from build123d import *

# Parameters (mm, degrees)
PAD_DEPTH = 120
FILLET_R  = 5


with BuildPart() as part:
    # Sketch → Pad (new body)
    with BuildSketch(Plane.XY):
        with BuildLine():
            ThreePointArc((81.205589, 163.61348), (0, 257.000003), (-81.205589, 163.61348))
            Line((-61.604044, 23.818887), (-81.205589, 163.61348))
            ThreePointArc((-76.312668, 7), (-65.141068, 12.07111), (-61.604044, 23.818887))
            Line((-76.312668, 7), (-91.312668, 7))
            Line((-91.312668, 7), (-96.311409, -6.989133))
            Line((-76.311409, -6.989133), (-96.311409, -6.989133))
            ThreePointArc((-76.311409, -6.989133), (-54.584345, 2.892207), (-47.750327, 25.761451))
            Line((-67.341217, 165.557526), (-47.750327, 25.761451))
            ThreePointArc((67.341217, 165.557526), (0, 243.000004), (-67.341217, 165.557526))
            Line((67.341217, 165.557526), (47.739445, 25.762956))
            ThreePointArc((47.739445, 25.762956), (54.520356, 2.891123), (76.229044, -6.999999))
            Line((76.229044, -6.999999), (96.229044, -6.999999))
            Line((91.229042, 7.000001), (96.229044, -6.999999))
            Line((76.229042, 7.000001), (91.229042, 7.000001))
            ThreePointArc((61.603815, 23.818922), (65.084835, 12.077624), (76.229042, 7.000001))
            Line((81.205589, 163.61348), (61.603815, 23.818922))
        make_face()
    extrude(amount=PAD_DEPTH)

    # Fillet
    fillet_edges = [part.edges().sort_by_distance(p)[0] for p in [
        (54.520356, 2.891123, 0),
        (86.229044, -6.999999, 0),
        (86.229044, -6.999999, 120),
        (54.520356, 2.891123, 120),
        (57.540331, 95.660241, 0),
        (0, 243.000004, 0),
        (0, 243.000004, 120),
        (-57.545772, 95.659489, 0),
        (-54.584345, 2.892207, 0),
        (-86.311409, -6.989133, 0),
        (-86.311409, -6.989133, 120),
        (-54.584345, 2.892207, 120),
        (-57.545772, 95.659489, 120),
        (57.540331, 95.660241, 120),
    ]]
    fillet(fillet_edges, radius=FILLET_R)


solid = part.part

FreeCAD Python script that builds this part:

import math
import FreeCAD as App
import Part
import Sketcher
Q = App.Units.Quantity


def edges_at(feature, points):
    """Names of the edges that pass closest to the given points."""
    edges = feature.Shape.Edges
    near = lambda p: min(range(len(edges)), key=lambda i: edges[i].distToShape(Part.Vertex(*p))[0])
    return sorted({f"Edge{near(p) + 1}" for p in points})

doc = App.newDocument("Part")
params = doc.addObject("Spreadsheet::Sheet", "Params")
for row, (alias, value) in enumerate([
    ("sketch1_radius", "67.999999 mm"),
    ("sketch1_width", "15 mm"),
    ("sketch1_width2", "20 mm"),
    ("sketch1_width3", "20 mm"),
    ("sketch1_width4", "15 mm"),
    ("pad1_length", "120 mm"),
    ("fillet_radius", "5 mm"),
], start=1):
    params.set(f"A{row}", alias)
    params.set(f"B{row}", "=" + value)
    params.setAlias(f"B{row}", alias)

body = doc.addObject("PartDesign::Body", "Body")

# Sketch on XY plane
sketch1 = body.newObject("Sketcher::SketchObject", "Sketch")
sketch1.AttachmentSupport = (doc.getObject("XY_Plane"), [""])
sketch1.MapMode = "FlatFace"
sketch1.addGeometry([
    Part.ArcOfCircle(Part.Circle(App.Vector(0, 175, 0), App.Vector(0, 0, 1), 82.000003), math.radians(-7.981884), math.radians(187.981884)),  # 0
    Part.LineSegment(App.Vector(-81.205589, 163.61348, 0), App.Vector(-61.604044, 23.818887, 0)),  # 1
    Part.ArcOfCircle(Part.Circle(App.Vector(-76.312668, 21.841011, 0), App.Vector(0, 0, 1), 14.841011), math.radians(-90.000001), math.radians(7.658651)),  # 2
    Part.LineSegment(App.Vector(-76.312668, 7, 0), App.Vector(-91.312668, 7, 0)),  # 3
    Part.LineSegment(App.Vector(-91.312668, 7, 0), App.Vector(-96.311409, -6.989133, 0)),  # 4
    Part.LineSegment(App.Vector(-96.311409, -6.989133, 0), App.Vector(-76.311409, -6.989133, 0)),  # 5
    Part.ArcOfCircle(Part.Circle(App.Vector(-76.312668, 21.841011, 0), App.Vector(0, 0, 1), 28.830144), math.radians(-89.997498), math.radians(7.815528)),  # 6
    Part.LineSegment(App.Vector(-47.750327, 25.761451, 0), App.Vector(-67.341217, 165.557526, 0)),  # 7
    Part.ArcOfCircle(Part.Circle(App.Vector(0, 175.000005, 0), App.Vector(0, 0, 1), 67.999999), math.radians(-7.981884), math.radians(187.981884)),  # 8
    Part.LineSegment(App.Vector(67.341217, 165.557526, 0), App.Vector(47.739445, 25.762956, 0)),  # 9
    Part.ArcOfCircle(Part.Circle(App.Vector(76.229041, 21.76829, 0), App.Vector(0, 0, 1), 28.768289), math.radians(172.018314), math.radians(270.000005)),  # 10
    Part.LineSegment(App.Vector(76.229044, -6.999999, 0), App.Vector(96.229044, -6.999999, 0)),  # 11
    Part.LineSegment(App.Vector(96.229044, -6.999999, 0), App.Vector(91.229042, 7.000001, 0)),  # 12
    Part.LineSegment(App.Vector(91.229042, 7.000001, 0), App.Vector(76.229042, 7.000001, 0)),  # 13
    Part.ArcOfCircle(Part.Circle(App.Vector(76.229042, 21.76829, 0), App.Vector(0, 0, 1), 14.768289), math.radians(172.018478), math.radians(270)),  # 14
    Part.LineSegment(App.Vector(61.603815, 23.818922, 0), App.Vector(81.205589, 163.61348, 0)),  # 15
], False)
sketch1.addConstraint([
    Sketcher.Constraint("Coincident", 0, 2, 1, 1),
    Sketcher.Constraint("Coincident", 1, 2, 2, 2),
    Sketcher.Constraint("Coincident", 2, 1, 3, 1),
    Sketcher.Constraint("Coincident", 3, 2, 4, 1),
    Sketcher.Constraint("Coincident", 4, 2, 5, 1),
    Sketcher.Constraint("Coincident", 5, 2, 6, 1),
    Sketcher.Constraint("Coincident", 6, 2, 7, 1),
    Sketcher.Constraint("Coincident", 7, 2, 8, 2),
    Sketcher.Constraint("Coincident", 8, 1, 9, 1),
    Sketcher.Constraint("Coincident", 9, 2, 10, 1),
    Sketcher.Constraint("Coincident", 10, 2, 11, 1),
    Sketcher.Constraint("Coincident", 11, 2, 12, 1),
    Sketcher.Constraint("Coincident", 12, 2, 13, 1),
    Sketcher.Constraint("Coincident", 13, 2, 14, 2),
    Sketcher.Constraint("Coincident", 14, 1, 15, 1),
    Sketcher.Constraint("Coincident", 15, 2, 0, 1),
    Sketcher.Constraint("Horizontal", 3),
    Sketcher.Constraint("Horizontal", 5),
    Sketcher.Constraint("Horizontal", 11),
    Sketcher.Constraint("Horizontal", 13),
    Sketcher.Constraint("Coincident", 6, 3, 2, 3),
    Sketcher.Constraint("Coincident", 8, 3, 0, 3),
    Sketcher.Constraint("Coincident", 14, 3, 10, 3),
    Sketcher.Constraint("PointOnObject", 0, 3, -2),
    Sketcher.Constraint("Radius", 8, Q("67.999999 mm")),
    Sketcher.Constraint("DistanceX", 3, 2, 3, 1, Q("15 mm")),
    Sketcher.Constraint("DistanceX", 5, 1, 5, 2, Q("20 mm")),
    Sketcher.Constraint("DistanceX", 11, 1, 11, 2, Q("20 mm")),
    Sketcher.Constraint("DistanceX", 13, 2, 13, 1, Q("15 mm")),
    Sketcher.Constraint("DistanceY", -1, 1, 0, 3, Q("175 mm")),
    Sketcher.Constraint("DistanceY", -1, 1, 2, 1, Q("7 mm")),
    Sketcher.Constraint("DistanceY", 10, 2, -1, 1, Q("6.999999 mm")),
    Sketcher.Constraint("DistanceY", -1, 1, 12, 2, Q("7.000001 mm")),
    Sketcher.Constraint("DistanceX", 3, 2, 6, 3, Q("15 mm")),
    Sketcher.Constraint("DistanceX", 14, 3, 11, 2, Q("20.000002 mm")),
    Sketcher.Constraint("DistanceX", 12, 2, 11, 2, Q("5.000002 mm")),
    Sketcher.Constraint("Radius", 2, Q("14.841011 mm")),
    Sketcher.Constraint("Radius", 10, Q("28.768289 mm")),
    Sketcher.Constraint("Radius", 0, Q("82.000003 mm")),
    Sketcher.Constraint("Radius", 6, Q("28.830144 mm")),
    Sketcher.Constraint("DistanceX", 9, 2, 10, 2, Q("28.489599 mm")),
    Sketcher.Constraint("Distance", 4, Q("14.855412 mm")),
    Sketcher.Constraint("DistanceX", 6, 3, -1, 1, Q("76.312668 mm")),
    Sketcher.Constraint("DistanceX", -1, 1, 10, 3, Q("76.229041 mm")),
    Sketcher.Constraint("DistanceX", 0, 2, -1, 1, Q("81.205589 mm")),
    Sketcher.Constraint("DistanceY", -1, 1, 6, 2, Q("25.761451 mm")),
    Sketcher.Constraint("DistanceX", -1, 1, 15, 2, Q("81.205589 mm")),
    Sketcher.Constraint("DistanceY", 4, 2, 1, 2, Q("30.80802 mm")),
    Sketcher.Constraint("DistanceY", 7, 2, 8, 3, Q("9.442479 mm")),
    Sketcher.Constraint("DistanceY", 8, 1, 8, 3, Q("9.442479 mm")),
    Sketcher.Constraint("DistanceX", 9, 2, 14, 1, Q("13.86437 mm")),
])
sketch1.setExpression("Constraints[24]", "Params.sketch1_radius")
sketch1.setExpression("Constraints[25]", "Params.sketch1_width")
sketch1.setExpression("Constraints[26]", "Params.sketch1_width2")
sketch1.setExpression("Constraints[27]", "Params.sketch1_width3")
sketch1.setExpression("Constraints[28]", "Params.sketch1_width4")
pad1 = body.newObject("PartDesign::Pad", "Pad")
pad1.Profile = sketch1
pad1.setExpression("Length", "Params.pad1_length")
doc.recompute()

fillet = body.newObject("PartDesign::Fillet", "Fillet")
fillet.Base = (pad1, edges_at(pad1, [
    (54.52, 2.891, 0),
    (86.229, -7, 0),
    (86.229, -7, 120),
    (54.52, 2.891, 120),
    (57.54, 95.66, 0),
    (0, 243, 0),
    (0, 243, 120),
    (-57.546, 95.659, 0),
    (-54.584, 2.892, 0),
    (-86.311, -6.989, 0),
    (-86.311, -6.989, 120),
    (-54.584, 2.892, 120),
    (-57.546, 95.659, 120),
    (57.54, 95.66, 120),
]))
fillet.setExpression("Radius", "Params.fillet_radius")

doc.recompute()
